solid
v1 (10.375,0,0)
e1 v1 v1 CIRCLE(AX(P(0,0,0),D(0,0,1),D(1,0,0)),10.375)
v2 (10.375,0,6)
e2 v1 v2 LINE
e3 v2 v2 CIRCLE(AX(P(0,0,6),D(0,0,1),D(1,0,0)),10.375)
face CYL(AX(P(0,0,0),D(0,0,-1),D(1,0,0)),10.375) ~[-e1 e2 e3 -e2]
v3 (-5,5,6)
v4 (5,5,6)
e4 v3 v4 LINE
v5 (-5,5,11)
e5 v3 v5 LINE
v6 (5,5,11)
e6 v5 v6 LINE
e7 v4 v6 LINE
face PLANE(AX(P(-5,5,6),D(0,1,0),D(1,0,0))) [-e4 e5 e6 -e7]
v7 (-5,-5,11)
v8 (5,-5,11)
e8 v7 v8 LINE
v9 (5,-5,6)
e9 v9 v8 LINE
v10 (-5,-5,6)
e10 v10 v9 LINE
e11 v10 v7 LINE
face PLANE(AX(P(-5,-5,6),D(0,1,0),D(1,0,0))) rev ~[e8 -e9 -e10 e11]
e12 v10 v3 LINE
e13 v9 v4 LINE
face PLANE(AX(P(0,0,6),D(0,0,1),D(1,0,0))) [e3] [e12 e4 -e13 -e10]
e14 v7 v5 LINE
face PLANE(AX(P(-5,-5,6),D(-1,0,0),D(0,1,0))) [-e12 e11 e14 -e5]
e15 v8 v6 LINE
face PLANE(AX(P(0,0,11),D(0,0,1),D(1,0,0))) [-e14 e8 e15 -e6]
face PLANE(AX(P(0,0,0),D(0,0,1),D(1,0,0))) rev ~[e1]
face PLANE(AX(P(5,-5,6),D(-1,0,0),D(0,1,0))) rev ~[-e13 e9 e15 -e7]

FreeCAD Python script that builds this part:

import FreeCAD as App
import Part
import Sketcher

V = App.Vector


def add_polygon(sketch, points):
    """Adds a closed chain of lines whose ends are joined by coincident constraints."""
    first, n = sketch.GeometryCount, len(points)
    for a, b in zip(points, points[1:] + points[:1]):
        sketch.addGeometry(Part.LineSegment(App.Vector(*a, 0), App.Vector(*b, 0)), False)
    for i in range(n):
        sketch.addConstraint(Sketcher.Constraint("Coincident", first + i, 2, first + (i + 1) % n, 1))

doc = App.newDocument("Part")
body = doc.addObject("PartDesign::Body", "Body")

sketch1 = body.newObject("Sketcher::SketchObject", "Sketch")
sketch1.AttachmentSupport = (doc.getObject("XY_Plane"), [""])
sketch1.MapMode = "FlatFace"
sketch1.AttachmentOffset = App.Placement(V(0, 0, 6), App.Rotation())
add_polygon(sketch1, [(-5, 5), (-5, -5), (5, -5), (5, 5)])
sketch1.addConstraint([
    Sketcher.Constraint("Vertical", 0),
    Sketcher.Constraint("Horizontal", 1),
    Sketcher.Constraint("Vertical", 2),
    Sketcher.Constraint("Horizontal", 3),
    Sketcher.Constraint("Symmetric", 0, 2, 2, 2, -1, 1),
    Sketcher.Constraint("Equal", 3, 0),
    Sketcher.Constraint("DistanceX", 1, 1, 1, 2, 10.0),
])
pad1 = body.newObject("PartDesign::Pad", "Pad")
pad1.Profile = sketch1
pad1.Length = 5

sketch2 = body.newObject("Sketcher::SketchObject", "Sketch001")
sketch2.AttachmentSupport = (doc.getObject("XY_Plane"), [""])
sketch2.MapMode = "FlatFace"
sketch2.addGeometry(Part.Circle(V(0, 0, 0), V(0, 0, 1), 10), False)
sketch2.addConstraint([
    Sketcher.Constraint("Coincident", 0, 3, -1, 1),
    Sketcher.Constraint("Diameter", 0, 20.75),
])
pad2 = body.newObject("PartDesign::Pad", "Pad001")
pad2.Profile = sketch2
pad2.Length = 6

doc.recompute()
